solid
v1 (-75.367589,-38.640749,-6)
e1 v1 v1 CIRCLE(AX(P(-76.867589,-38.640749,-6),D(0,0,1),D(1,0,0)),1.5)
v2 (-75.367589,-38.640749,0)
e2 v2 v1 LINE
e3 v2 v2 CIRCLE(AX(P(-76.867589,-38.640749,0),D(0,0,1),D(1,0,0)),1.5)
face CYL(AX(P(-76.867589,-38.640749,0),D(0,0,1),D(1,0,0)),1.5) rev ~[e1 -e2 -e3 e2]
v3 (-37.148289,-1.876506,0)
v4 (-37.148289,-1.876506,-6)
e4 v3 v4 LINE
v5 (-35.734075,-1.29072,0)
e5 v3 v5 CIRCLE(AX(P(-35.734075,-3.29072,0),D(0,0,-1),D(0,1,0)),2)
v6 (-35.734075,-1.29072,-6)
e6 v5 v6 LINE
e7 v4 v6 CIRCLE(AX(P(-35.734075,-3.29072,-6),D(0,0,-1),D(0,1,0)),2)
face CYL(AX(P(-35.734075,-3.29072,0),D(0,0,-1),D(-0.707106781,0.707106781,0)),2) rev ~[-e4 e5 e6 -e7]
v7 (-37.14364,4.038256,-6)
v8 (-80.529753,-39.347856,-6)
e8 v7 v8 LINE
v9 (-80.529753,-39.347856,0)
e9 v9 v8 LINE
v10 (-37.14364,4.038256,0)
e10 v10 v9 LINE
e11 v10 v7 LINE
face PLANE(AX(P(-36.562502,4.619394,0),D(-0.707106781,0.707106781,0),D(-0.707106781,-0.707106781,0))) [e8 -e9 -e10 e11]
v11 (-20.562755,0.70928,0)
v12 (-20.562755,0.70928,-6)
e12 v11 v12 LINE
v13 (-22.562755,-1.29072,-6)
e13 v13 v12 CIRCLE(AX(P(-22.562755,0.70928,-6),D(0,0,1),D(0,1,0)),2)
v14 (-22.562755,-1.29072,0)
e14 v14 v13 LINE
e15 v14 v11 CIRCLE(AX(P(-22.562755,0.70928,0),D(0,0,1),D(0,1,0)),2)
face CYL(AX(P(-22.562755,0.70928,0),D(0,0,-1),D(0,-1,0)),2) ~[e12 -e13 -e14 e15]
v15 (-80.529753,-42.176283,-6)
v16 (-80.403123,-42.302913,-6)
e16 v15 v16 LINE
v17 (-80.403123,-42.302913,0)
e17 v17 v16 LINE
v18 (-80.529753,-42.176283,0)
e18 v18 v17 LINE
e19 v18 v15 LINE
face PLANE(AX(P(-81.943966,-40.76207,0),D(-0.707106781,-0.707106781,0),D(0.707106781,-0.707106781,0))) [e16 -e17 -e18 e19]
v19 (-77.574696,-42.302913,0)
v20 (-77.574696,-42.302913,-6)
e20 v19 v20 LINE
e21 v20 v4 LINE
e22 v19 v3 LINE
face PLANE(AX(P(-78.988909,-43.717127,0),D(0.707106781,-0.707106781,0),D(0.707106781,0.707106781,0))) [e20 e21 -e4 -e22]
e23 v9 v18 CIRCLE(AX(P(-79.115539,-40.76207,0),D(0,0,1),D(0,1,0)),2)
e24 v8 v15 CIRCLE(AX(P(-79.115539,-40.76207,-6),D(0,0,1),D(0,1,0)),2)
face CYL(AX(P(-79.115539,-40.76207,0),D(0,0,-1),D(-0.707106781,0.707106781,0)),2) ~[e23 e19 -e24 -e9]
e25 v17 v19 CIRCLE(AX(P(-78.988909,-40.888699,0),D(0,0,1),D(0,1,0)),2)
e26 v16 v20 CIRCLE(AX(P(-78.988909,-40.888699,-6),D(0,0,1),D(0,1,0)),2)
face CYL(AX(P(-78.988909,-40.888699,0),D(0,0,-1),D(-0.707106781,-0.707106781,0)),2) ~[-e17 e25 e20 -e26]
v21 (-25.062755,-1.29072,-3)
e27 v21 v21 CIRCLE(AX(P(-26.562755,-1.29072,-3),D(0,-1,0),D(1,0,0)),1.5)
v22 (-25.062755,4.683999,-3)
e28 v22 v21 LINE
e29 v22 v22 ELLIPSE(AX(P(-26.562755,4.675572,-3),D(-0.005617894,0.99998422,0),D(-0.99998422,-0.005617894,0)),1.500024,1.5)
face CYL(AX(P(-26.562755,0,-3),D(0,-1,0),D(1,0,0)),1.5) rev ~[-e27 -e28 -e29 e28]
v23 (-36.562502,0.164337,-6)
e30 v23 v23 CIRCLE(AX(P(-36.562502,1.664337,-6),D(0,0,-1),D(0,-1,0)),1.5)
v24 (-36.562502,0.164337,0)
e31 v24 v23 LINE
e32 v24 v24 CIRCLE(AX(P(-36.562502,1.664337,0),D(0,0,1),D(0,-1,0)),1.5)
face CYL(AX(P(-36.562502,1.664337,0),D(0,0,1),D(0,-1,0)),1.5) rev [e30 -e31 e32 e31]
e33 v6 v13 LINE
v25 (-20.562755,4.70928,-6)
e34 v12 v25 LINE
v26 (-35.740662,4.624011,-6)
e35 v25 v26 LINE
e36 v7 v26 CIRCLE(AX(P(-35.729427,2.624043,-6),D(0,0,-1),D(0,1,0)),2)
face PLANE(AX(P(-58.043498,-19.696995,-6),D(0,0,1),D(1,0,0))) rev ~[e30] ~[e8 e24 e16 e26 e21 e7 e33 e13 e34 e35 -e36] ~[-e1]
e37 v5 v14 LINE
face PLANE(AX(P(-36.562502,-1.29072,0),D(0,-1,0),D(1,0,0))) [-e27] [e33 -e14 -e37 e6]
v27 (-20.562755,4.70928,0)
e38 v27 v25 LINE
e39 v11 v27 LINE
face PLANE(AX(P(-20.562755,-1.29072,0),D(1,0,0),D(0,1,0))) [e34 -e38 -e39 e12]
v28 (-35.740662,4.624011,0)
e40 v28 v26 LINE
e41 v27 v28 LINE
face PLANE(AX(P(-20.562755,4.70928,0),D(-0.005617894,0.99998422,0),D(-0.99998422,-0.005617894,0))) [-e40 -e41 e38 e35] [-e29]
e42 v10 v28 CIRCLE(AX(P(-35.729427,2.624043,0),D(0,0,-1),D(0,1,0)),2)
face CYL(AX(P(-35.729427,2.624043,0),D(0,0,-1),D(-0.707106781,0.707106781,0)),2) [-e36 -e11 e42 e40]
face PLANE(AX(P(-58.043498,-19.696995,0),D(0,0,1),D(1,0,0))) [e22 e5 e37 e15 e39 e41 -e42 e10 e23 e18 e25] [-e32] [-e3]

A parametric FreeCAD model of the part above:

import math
import FreeCAD as App
import Part
import Sketcher

V = App.Vector
Q = App.Units.Quantity


def edges_at(feature, points):
    """Names of the edges that pass closest to the given points."""
    edges = feature.Shape.Edges
    near = lambda p: min(range(len(edges)), key=lambda i: edges[i].distToShape(Part.Vertex(*p))[0])
    return sorted({f"Edge{near(p) + 1}" for p in points})

doc = App.newDocument("Part")
body = doc.addObject("PartDesign::Body", "Body")

# Sketch on XY plane
sketch1 = body.newObject("Sketcher::SketchObject", "Sketch")
sketch1.AttachmentSupport = (doc.getObject("XY_Plane"), [""])
sketch1.MapMode = "FlatFace"
sketch1.addGeometry([
    Part.LineSegment(V(-20.562755, -1.29072, 0), V(-20.562755, 4.70928, 0)),  # 0
    Part.LineSegment(V(-20.562755, 4.70928, 0), V(-36.562502, 4.619394, 0)),  # 1
    Part.LineSegment(V(-36.562502, 4.619394, 0), V(-36.562502, 3.164337, 0)),  # 2
    Part.ArcOfCircle(Part.Circle(V(-36.562502, 1.664337, 0), V(0, 0, 1), 1.5), math.radians(-90), math.radians(90)),  # 3
    Part.LineSegment(V(-36.562502, 0.164337, 0), V(-36.562502, -1.29072, 0)),  # 4
    Part.LineSegment(V(-36.562502, -1.29072, 0), V(-20.562755, -1.29072, 0)),  # 5
], False)
sketch1.addConstraint([
    Sketcher.Constraint("Coincident", 0, 2, 1, 1),
    Sketcher.Constraint("Coincident", 1, 2, 2, 1),
    Sketcher.Constraint("Coincident", 2, 2, 3, 2),
    Sketcher.Constraint("Coincident", 3, 1, 4, 1),
    Sketcher.Constraint("Coincident", 4, 2, 5, 1),
    Sketcher.Constraint("Coincident", 5, 2, 0, 1),
    Sketcher.Constraint("Vertical", 0),
    Sketcher.Constraint("Vertical", 2),
    Sketcher.Constraint("Vertical", 4),
    Sketcher.Constraint("Horizontal", 5),
    Sketcher.Constraint("Radius", 3, 1.5),
    Sketcher.Constraint("DistanceY", 0, 1, 0, 2, 6.0),
    Sketcher.Constraint("Distance", 1, 16.0),
    Sketcher.Constraint("DistanceX", 5, 1, 5, 2, 15.999748),
    Sketcher.Constraint("DistanceY", 2, 2, 2, 1, 1.455057),
    Sketcher.Constraint("DistanceY", 4, 2, 4, 1, 1.455057),
    Sketcher.Constraint("DistanceY", -1, 1, 0, 2, 4.70928),
    Sketcher.Constraint("DistanceX", 3, 3, -1, 1, 36.562502),
    Sketcher.Constraint("DistanceX", 0, 2, -1, 1, 20.562755),
])
pad1 = body.newObject("PartDesign::Pad", "Pad")
pad1.Profile = sketch1
pad1.Length = 6
pad1.Reversed = True

# Sketch on XY plane
sketch2 = body.newObject("Sketcher::SketchObject", "Sketch001")
sketch2.AttachmentSupport = (doc.getObject("XY_Plane"), [""])
sketch2.MapMode = "FlatFace"
sketch2.addGeometry([
    Part.LineSegment(V(-36.6, 3.2, 0), V(-36.6, 4.6, 0)),  # 0
    Part.LineSegment(V(-36.6, 4.6, 0), V(-81.9, -40.8, 0)),  # 1
    Part.LineSegment(V(-81.9, -40.8, 0), V(-79, -43.7, 0)),  # 2
    Part.LineSegment(V(-79, -43.7, 0), V(-36.6, -1.3, 0)),  # 3
    Part.LineSegment(V(-36.6, -1.3, 0), V(-36.6, 0.2, 0)),  # 4
    Part.ArcOfCircle(Part.Circle(V(-36.6, 1.7, 0), V(0, 0, 1), 1.5), math.radians(90), math.radians(270)),  # 5
    Part.Circle(V(-76.9, -38.6, 0), V(0, 0, 1), 1.5),  # 6
], False)
sketch2.addConstraint([
    Sketcher.Constraint("Coincident", 0, 2, 1, 1),
    Sketcher.Constraint("Coincident", 1, 2, 2, 1),
    Sketcher.Constraint("Coincident", 2, 2, 3, 1),
    Sketcher.Constraint("Coincident", 3, 2, 4, 1),
    Sketcher.Constraint("Coincident", 4, 2, 5, 2),
    Sketcher.Constraint("Coincident", 5, 1, 0, 1),
    Sketcher.Constraint("Vertical", 0),
    Sketcher.Constraint("Vertical", 4),
    Sketcher.Constraint("Equal", 5, 6),
    Sketcher.Constraint("Perpendicular", 1, 2),
    Sketcher.Constraint("Perpendicular", 2, 3),
    Sketcher.Constraint("Vertical", 5, 3, 0, 2),
    Sketcher.Constraint("Vertical", 0, 2, 3, 2),
    Sketcher.Constraint("Equal", 0, 4),
    Sketcher.Constraint("Diameter", 6, 3.0),
    Sketcher.Constraint("Angle", 1, Q("-135 deg")),
    Sketcher.Constraint("Distance", 3, 60.0),
    Sketcher.Constraint("Distance", 1, 64.179081),
    Sketcher.Constraint("DistanceX", 6, 3, -1, 1, 76.867589),
    Sketcher.Constraint("DistanceY", 6, 3, -1, 1, 38.640749),
    Sketcher.Constraint("DistanceY", 1, 2, -1, 1, 40.76207),
    Sketcher.Constraint("DistanceX", 2, 2, -1, 1, 78.988909),
])
pad2 = body.newObject("PartDesign::Pad", "Pad001")
pad2.Profile = sketch2
pad2.Length = 6
pad2.Reversed = True

# Sketch on XZ plane
sketch3 = body.newObject("Sketcher::SketchObject", "Sketch002")
sketch3.AttachmentSupport = (doc.getObject("XZ_Plane"), [""])
sketch3.MapMode = "FlatFace"
sketch3.addGeometry(Part.Circle(V(-26.6, -3, 0), V(0, 0, 1), 1.5), False)
sketch3.addConstraint([
    Sketcher.Constraint("Diameter", 0, 3.0),
    Sketcher.Constraint("DistanceY", 0, 3, -1, 1, 3.0),
    Sketcher.Constraint("DistanceX", 0, 3, -1, 1, 26.562755),
])
pocket1 = body.newObject("PartDesign::Pocket", "Pocket")
pocket1.Profile = sketch3
pocket1.Length = 25
pocket1.Midplane = True
doc.recompute()

fillet = body.newObject("PartDesign::Fillet", "Fillet")
fillet.Base = (pocket1, edges_at(pocket1, [
    (-36.563, 4.619, -3),
    (-20.563, -1.291, -3),
    (-36.563, -1.291, -3),
    (-78.989, -43.717, -3),
    (-81.944, -40.762, -3),
]))
fillet.Radius = 2

doc.recompute()
